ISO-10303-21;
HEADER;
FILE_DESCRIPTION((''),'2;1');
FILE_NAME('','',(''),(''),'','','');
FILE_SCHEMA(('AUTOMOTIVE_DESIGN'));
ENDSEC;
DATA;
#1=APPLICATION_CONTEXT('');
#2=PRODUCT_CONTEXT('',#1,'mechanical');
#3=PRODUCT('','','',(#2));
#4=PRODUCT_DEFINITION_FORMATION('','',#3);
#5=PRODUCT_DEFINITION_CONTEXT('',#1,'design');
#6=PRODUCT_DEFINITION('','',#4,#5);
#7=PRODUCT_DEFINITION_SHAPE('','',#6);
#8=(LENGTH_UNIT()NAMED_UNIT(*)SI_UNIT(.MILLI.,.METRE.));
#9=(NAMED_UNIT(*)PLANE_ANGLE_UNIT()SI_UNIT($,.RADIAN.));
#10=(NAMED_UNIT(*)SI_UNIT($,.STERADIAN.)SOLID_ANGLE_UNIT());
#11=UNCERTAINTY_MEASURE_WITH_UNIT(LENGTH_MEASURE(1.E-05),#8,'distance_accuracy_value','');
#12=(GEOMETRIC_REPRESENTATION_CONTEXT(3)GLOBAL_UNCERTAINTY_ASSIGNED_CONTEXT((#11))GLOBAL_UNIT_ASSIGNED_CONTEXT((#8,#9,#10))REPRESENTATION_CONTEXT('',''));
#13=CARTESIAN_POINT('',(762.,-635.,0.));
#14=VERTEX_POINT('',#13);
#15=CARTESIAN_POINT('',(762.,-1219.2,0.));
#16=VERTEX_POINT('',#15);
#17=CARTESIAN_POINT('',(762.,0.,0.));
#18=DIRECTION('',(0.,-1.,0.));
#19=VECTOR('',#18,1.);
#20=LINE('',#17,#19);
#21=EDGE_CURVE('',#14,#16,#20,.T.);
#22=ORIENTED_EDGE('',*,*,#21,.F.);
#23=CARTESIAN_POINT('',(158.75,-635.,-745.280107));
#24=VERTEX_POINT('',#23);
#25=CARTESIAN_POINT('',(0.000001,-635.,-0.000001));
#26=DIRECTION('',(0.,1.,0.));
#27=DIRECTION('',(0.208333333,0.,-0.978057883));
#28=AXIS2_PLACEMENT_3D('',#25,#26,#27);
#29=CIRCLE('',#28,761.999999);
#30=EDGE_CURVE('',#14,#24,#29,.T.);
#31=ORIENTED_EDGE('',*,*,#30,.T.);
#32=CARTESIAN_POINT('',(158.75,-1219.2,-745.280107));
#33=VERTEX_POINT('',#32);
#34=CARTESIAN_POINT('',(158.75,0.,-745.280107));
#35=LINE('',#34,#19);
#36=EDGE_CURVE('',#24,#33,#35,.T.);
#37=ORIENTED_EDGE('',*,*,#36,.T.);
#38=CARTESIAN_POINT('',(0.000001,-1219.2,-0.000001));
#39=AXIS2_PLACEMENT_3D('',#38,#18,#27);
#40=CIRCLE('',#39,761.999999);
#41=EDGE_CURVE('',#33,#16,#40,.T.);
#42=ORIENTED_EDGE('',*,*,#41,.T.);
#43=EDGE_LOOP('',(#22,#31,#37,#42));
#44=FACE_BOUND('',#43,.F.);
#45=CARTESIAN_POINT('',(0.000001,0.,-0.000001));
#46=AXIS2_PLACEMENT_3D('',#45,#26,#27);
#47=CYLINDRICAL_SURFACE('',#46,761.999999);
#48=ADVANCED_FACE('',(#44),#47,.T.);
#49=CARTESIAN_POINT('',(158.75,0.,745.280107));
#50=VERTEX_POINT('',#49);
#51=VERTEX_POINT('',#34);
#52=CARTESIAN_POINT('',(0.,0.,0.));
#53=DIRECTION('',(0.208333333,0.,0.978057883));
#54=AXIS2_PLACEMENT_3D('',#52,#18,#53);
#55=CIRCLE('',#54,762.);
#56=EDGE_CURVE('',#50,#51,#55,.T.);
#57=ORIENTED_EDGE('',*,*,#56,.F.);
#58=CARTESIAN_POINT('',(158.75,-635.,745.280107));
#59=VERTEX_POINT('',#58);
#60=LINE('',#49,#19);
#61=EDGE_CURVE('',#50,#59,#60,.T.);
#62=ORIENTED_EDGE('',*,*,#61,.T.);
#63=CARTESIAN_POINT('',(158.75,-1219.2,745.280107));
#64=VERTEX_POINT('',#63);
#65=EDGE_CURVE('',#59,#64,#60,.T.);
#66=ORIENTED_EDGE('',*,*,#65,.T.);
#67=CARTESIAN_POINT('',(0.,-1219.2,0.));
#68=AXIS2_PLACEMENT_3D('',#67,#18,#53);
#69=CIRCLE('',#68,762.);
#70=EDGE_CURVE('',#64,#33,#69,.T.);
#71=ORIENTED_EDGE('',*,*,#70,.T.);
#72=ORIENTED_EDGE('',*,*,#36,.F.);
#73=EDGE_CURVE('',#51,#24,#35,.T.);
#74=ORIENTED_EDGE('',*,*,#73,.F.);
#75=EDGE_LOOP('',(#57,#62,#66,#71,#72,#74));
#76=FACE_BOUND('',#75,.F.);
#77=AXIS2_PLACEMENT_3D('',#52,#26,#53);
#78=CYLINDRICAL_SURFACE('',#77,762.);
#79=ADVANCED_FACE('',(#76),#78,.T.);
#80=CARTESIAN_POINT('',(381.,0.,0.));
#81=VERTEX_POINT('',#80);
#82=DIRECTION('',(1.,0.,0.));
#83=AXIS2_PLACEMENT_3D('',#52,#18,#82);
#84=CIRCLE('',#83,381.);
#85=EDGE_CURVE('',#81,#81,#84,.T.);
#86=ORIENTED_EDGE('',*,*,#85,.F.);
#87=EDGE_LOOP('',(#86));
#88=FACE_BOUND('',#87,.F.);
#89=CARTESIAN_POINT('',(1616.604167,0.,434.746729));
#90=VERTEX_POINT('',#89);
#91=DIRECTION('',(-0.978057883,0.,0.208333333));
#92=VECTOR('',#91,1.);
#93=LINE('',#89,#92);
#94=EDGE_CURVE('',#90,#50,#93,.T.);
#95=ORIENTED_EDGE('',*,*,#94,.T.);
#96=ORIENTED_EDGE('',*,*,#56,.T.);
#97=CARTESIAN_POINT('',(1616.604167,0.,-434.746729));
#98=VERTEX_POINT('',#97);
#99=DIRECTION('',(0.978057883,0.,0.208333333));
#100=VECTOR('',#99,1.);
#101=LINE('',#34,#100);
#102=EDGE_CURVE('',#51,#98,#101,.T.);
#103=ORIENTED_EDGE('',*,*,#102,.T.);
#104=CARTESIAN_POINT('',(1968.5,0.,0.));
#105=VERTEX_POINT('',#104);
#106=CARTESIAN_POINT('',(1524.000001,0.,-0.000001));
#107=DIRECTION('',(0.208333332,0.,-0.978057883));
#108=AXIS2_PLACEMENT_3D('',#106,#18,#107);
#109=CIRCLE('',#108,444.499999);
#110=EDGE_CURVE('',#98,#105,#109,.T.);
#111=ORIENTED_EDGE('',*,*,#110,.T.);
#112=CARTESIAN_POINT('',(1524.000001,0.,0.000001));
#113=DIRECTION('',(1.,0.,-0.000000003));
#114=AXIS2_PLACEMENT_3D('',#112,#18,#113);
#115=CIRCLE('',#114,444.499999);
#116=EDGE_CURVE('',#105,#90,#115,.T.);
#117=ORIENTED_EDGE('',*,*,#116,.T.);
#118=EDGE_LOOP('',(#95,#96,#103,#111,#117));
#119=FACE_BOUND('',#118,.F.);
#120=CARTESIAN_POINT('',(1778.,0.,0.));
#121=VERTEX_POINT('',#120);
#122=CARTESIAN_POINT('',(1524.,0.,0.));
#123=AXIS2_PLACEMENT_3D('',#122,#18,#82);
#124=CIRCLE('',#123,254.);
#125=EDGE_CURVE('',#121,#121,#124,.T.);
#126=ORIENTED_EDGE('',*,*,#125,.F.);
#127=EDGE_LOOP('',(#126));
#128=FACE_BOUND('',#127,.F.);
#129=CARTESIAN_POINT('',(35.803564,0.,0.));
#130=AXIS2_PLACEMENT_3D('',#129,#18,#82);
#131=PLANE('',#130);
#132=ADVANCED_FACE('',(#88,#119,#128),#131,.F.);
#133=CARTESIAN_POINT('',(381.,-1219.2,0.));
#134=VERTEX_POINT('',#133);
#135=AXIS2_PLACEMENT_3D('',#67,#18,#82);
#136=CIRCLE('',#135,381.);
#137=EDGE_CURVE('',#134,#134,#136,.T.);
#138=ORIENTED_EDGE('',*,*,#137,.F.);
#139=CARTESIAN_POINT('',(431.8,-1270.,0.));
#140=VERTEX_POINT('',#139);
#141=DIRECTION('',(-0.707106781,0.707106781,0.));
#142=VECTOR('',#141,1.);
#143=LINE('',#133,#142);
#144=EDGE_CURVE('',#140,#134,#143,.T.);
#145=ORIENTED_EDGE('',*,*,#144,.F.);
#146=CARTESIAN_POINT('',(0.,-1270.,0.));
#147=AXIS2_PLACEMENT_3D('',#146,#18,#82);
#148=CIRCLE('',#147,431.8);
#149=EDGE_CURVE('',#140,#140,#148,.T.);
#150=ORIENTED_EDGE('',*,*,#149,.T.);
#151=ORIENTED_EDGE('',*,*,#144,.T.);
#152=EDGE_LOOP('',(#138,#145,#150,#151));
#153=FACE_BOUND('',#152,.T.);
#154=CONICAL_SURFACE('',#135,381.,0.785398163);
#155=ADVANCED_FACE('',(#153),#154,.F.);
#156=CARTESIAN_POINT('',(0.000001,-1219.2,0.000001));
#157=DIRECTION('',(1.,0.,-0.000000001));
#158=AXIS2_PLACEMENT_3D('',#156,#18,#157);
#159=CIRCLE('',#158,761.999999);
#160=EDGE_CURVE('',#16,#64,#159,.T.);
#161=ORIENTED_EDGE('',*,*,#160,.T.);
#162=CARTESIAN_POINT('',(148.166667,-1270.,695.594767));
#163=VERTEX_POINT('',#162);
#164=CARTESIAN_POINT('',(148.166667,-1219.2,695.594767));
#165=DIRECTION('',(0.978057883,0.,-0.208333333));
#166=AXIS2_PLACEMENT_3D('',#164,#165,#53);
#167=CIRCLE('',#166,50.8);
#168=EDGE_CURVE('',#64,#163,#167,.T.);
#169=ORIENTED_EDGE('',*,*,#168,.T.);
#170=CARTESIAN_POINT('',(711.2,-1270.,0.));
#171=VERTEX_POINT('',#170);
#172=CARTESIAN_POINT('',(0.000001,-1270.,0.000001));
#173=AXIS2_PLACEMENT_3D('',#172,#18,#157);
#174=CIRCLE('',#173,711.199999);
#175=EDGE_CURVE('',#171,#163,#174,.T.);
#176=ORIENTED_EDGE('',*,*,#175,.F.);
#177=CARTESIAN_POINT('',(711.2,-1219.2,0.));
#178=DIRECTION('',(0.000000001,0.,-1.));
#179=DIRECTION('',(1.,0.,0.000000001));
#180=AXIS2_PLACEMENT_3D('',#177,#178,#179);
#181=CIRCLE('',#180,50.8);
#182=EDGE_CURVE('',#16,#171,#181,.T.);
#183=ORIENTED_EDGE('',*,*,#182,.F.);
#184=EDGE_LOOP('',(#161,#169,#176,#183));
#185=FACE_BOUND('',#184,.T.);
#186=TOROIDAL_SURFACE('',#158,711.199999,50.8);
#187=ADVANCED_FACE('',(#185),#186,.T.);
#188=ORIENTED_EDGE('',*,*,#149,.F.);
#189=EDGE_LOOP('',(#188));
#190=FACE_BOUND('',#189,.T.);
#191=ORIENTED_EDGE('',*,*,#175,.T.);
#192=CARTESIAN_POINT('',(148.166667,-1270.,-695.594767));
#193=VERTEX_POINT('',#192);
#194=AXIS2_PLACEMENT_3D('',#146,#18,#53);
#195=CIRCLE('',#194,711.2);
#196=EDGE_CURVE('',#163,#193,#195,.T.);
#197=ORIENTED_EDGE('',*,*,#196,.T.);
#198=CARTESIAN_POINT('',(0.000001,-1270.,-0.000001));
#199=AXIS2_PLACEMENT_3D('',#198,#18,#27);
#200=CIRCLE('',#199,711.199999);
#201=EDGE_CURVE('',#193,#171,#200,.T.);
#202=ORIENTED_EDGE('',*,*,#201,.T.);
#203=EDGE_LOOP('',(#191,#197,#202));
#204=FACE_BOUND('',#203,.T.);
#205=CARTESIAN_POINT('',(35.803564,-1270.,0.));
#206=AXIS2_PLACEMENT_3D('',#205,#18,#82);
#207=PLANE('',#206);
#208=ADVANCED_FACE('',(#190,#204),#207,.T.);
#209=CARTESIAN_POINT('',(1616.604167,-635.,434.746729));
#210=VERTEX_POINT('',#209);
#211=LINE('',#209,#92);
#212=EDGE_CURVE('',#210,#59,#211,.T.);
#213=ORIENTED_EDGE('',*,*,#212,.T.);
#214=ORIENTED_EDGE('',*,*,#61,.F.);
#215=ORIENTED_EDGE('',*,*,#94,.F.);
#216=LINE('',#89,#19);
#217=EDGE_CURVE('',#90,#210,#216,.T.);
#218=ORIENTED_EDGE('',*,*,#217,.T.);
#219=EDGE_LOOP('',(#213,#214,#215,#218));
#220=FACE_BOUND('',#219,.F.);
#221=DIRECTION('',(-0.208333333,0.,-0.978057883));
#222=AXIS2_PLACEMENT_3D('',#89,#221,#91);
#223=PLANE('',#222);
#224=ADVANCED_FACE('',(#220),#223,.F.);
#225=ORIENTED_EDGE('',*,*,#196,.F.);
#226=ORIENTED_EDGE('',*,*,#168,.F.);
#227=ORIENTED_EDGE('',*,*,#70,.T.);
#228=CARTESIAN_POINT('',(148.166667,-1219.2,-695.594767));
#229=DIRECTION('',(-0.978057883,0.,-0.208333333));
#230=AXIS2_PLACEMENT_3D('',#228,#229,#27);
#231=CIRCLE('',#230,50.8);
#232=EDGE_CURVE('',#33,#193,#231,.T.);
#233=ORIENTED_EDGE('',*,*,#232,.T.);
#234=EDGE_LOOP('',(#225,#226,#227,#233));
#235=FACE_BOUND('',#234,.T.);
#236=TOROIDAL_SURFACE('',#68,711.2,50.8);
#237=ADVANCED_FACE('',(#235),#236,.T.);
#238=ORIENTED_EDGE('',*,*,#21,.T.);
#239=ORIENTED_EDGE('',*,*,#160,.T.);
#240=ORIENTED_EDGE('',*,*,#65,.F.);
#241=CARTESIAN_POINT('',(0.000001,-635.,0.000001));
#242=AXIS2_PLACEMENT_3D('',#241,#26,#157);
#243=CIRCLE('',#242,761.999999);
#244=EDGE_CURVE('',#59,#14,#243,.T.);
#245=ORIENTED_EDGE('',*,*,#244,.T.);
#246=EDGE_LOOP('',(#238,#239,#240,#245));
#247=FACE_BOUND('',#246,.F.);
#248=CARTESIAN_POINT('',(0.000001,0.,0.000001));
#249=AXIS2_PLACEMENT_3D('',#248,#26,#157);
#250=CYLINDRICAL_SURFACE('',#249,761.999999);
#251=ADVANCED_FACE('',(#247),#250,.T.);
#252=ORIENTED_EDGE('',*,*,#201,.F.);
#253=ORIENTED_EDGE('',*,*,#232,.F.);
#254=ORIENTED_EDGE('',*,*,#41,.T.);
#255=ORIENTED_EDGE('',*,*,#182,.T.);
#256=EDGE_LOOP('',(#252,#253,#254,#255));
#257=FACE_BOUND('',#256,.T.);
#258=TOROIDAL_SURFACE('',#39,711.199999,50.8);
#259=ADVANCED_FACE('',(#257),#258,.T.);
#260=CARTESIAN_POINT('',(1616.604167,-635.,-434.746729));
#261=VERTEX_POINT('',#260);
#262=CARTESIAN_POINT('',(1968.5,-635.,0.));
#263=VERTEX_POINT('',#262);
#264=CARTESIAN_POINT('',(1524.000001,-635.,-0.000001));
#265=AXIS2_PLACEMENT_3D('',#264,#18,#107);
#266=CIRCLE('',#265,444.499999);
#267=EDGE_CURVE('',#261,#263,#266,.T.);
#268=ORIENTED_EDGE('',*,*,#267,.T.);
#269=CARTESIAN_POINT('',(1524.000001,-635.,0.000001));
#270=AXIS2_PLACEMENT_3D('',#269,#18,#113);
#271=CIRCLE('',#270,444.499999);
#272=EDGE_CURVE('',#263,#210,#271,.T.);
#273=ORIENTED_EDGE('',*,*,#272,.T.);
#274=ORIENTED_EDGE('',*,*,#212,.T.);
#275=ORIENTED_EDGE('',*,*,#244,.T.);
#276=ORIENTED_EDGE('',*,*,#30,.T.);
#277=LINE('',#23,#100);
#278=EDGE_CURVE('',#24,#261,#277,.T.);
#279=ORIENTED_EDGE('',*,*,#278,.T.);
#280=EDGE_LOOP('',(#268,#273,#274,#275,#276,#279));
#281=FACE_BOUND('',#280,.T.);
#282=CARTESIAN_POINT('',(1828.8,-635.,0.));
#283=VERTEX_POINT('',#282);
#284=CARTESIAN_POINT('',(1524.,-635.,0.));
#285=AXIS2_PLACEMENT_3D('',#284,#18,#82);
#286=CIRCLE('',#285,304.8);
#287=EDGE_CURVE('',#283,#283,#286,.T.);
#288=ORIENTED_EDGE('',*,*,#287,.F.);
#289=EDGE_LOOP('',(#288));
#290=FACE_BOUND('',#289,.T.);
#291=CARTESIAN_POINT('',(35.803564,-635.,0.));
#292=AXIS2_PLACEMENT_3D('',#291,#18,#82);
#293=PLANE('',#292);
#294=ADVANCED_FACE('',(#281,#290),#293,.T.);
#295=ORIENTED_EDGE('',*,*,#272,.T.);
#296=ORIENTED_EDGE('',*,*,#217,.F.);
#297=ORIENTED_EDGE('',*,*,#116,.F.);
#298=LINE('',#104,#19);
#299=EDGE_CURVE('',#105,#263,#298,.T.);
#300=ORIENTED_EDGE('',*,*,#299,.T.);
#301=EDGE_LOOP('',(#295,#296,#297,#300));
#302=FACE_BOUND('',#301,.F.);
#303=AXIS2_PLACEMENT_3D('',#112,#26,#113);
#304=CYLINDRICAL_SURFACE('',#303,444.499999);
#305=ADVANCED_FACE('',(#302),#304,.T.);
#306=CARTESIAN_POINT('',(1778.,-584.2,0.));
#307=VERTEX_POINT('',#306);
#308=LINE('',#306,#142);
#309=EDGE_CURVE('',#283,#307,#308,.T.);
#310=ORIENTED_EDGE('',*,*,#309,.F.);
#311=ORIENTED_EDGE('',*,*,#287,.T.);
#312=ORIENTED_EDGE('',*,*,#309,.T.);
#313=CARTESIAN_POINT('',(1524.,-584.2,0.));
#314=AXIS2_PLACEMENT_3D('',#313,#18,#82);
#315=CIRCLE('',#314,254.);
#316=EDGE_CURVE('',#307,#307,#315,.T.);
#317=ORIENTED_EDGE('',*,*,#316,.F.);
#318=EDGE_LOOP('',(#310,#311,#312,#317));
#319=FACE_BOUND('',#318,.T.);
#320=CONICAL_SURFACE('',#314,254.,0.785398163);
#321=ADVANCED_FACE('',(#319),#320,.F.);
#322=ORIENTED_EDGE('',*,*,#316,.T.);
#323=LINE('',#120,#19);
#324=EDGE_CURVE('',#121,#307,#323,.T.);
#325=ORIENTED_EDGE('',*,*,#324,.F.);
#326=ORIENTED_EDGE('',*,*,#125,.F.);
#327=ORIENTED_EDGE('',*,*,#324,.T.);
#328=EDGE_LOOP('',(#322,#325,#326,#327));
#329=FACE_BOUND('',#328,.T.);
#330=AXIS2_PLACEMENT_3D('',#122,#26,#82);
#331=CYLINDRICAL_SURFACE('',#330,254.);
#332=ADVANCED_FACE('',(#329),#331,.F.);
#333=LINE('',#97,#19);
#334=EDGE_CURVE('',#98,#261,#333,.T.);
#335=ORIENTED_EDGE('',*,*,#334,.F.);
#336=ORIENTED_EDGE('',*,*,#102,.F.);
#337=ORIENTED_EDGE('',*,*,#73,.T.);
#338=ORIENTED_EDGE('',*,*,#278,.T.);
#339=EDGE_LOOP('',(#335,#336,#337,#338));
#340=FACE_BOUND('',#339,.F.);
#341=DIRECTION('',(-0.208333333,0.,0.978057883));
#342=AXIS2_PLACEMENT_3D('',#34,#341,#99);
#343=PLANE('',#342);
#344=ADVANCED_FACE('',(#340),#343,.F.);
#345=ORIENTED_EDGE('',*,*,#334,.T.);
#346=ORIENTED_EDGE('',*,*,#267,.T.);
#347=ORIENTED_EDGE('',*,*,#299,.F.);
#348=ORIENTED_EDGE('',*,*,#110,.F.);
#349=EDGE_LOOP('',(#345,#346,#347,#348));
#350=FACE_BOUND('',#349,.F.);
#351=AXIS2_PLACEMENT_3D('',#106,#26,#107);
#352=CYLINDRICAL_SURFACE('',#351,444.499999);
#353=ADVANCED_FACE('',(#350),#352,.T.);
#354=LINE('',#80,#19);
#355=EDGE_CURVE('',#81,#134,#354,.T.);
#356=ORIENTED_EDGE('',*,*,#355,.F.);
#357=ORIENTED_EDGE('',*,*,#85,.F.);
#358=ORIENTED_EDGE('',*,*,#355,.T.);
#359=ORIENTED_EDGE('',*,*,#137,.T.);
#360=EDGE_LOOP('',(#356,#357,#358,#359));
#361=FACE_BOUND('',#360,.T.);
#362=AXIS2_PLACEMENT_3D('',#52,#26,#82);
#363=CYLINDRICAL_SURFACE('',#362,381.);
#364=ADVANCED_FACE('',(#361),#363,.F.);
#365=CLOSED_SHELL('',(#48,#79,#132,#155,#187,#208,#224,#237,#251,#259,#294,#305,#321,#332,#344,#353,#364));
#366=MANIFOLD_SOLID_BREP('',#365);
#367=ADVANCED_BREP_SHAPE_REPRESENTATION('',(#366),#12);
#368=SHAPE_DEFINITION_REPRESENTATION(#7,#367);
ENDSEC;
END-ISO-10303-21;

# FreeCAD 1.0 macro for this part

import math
import FreeCAD as App
import Part
import Sketcher
Q = App.Units.Quantity


def edges_at(feature, points):
    """Names of the edges that pass closest to the given points."""
    edges = feature.Shape.Edges
    near = lambda p: min(range(len(edges)), key=lambda i: edges[i].distToShape(Part.Vertex(*p))[0])
    return sorted({f"Edge{near(p) + 1}" for p in points})

doc = App.newDocument("Part")
body = doc.addObject("PartDesign::Body", "Body")

# Sketch on XZ plane
sketch1 = body.newObject("Sketcher::SketchObject", "Sketch")
sketch1.AttachmentSupport = (doc.getObject("XZ_Plane"), [""])
sketch1.MapMode = "FlatFace"
sketch1.addGeometry([
    Part.ArcOfCircle(Part.Circle(App.Vector(0, 0, 0), App.Vector(0, 0, 1), 762), math.radians(78), math.radians(282)),  # 0
    Part.LineSegment(App.Vector(159, -745, 0), App.Vector(1617, -435, 0)),  # 1
    Part.ArcOfCircle(Part.Circle(App.Vector(1524, 0, 0), App.Vector(0, 0, 1), 444), math.radians(-78), math.radians(0)),  # 2
    Part.ArcOfCircle(Part.Circle(App.Vector(1524, 0, 0), App.Vector(0, 0, 1), 444), math.radians(0), math.radians(78)),  # 3
    Part.LineSegment(App.Vector(1617, 435, 0), App.Vector(159, 745, 0)),  # 4
    Part.Circle(App.Vector(0, 0, 0), App.Vector(0, 0, 1), 381),  # 5
    Part.Circle(App.Vector(1524, 0, 0), App.Vector(0, 0, 1), 254),  # 6
], False)
sketch1.addConstraint([
    Sketcher.Constraint("Tangent", 0, 2, 1, 1),
    Sketcher.Constraint("Tangent", 1, 2, 2, 1),
    Sketcher.Constraint("Tangent", 2, 2, 3, 1),
    Sketcher.Constraint("Tangent", 3, 2, 4, 1),
    Sketcher.Constraint("Coincident", 4, 2, 0, 1),
    Sketcher.Constraint("Coincident", 0, 3, -1, 1),
    Sketcher.Constraint("Coincident", 5, 3, -1, 1),
    Sketcher.Constraint("Coincident", 6, 3, 2, 3),
    Sketcher.Constraint("Equal", 2, 3),
    Sketcher.Constraint("PointOnObject", 2, 3, -1),
    Sketcher.Constraint("PointOnObject", 2, 2, -1),
    Sketcher.Constraint("Equal", 1, 4),
    Sketcher.Constraint("Diameter", 5, Q("30 in")),
    Sketcher.Constraint("Diameter", 6, Q("20 in")),
    Sketcher.Constraint("Radius", 0, Q("30 in")),
    Sketcher.Constraint("Radius", 2, Q("17.4999999 in")),
    Sketcher.Constraint("DistanceX", -1, 1, 2, 3, Q("60.0000001 in")),
])
pad1 = body.newObject("PartDesign::Pad", "Pad")
pad1.Profile = sketch1
pad1.Length = Q("25 in")

# Sketch on XZ plane
sketch2 = body.newObject("Sketcher::SketchObject", "Sketch001")
sketch2.AttachmentSupport = (doc.getObject("XZ_Plane"), [""])
sketch2.MapMode = "FlatFace"
sketch2.addGeometry([
    Part.ArcOfCircle(Part.Circle(App.Vector(0, 0, 0), App.Vector(0, 0, 1), 762), math.radians(-78), math.radians(0)),
    Part.ArcOfCircle(Part.Circle(App.Vector(0, 0, 0), App.Vector(0, 0, 1), 762), math.radians(0), math.radians(78)),
    Part.ArcOfCircle(Part.Circle(App.Vector(0, 0, 0), App.Vector(0, 0, 1), 762), math.radians(78), math.radians(282)),
    Part.Circle(App.Vector(0, 0, 0), App.Vector(0, 0, 1), 381),
], False)
sketch2.addConstraint([
    Sketcher.Constraint("Coincident", 0, 2, 1, 1),
    Sketcher.Constraint("Coincident", 1, 2, 2, 1),
    Sketcher.Constraint("Coincident", 2, 2, 0, 1),
    Sketcher.Constraint("Coincident", 0, 3, -1, 1),
    Sketcher.Constraint("Coincident", 1, 3, -1, 1),
    Sketcher.Constraint("Coincident", 3, 3, -1, 1),
    Sketcher.Constraint("Equal", 1, 2),
    Sketcher.Constraint("PointOnObject", 0, 2, -1),
    Sketcher.Constraint("Vertical", 1, 2, 2, 2),
    Sketcher.Constraint("Diameter", 3, Q("30 in")),
    Sketcher.Constraint("Radius", 0, Q("30 in")),
    Sketcher.Constraint("DistanceX", -1, 1, 1, 2, Q("6.25 in")),
])
pad2 = body.newObject("PartDesign::Pad", "Pad001")
pad2.Profile = sketch2
pad2.Length = Q("50 in")
doc.recompute()

fillet = body.newObject("PartDesign::Fillet", "Fillet")
fillet.Base = (pad2, edges_at(pad2, [(-762, -1270, 0)]))
fillet.Radius = Q("2 in")
doc.recompute()

chamfer = body.newObject("PartDesign::Chamfer", "Chamfer")
chamfer.Base = (fillet, edges_at(fillet, [(-381, -1270, 0), (1270, -635, 0)]))
chamfer.Size = Q("2 in")

doc.recompute()
